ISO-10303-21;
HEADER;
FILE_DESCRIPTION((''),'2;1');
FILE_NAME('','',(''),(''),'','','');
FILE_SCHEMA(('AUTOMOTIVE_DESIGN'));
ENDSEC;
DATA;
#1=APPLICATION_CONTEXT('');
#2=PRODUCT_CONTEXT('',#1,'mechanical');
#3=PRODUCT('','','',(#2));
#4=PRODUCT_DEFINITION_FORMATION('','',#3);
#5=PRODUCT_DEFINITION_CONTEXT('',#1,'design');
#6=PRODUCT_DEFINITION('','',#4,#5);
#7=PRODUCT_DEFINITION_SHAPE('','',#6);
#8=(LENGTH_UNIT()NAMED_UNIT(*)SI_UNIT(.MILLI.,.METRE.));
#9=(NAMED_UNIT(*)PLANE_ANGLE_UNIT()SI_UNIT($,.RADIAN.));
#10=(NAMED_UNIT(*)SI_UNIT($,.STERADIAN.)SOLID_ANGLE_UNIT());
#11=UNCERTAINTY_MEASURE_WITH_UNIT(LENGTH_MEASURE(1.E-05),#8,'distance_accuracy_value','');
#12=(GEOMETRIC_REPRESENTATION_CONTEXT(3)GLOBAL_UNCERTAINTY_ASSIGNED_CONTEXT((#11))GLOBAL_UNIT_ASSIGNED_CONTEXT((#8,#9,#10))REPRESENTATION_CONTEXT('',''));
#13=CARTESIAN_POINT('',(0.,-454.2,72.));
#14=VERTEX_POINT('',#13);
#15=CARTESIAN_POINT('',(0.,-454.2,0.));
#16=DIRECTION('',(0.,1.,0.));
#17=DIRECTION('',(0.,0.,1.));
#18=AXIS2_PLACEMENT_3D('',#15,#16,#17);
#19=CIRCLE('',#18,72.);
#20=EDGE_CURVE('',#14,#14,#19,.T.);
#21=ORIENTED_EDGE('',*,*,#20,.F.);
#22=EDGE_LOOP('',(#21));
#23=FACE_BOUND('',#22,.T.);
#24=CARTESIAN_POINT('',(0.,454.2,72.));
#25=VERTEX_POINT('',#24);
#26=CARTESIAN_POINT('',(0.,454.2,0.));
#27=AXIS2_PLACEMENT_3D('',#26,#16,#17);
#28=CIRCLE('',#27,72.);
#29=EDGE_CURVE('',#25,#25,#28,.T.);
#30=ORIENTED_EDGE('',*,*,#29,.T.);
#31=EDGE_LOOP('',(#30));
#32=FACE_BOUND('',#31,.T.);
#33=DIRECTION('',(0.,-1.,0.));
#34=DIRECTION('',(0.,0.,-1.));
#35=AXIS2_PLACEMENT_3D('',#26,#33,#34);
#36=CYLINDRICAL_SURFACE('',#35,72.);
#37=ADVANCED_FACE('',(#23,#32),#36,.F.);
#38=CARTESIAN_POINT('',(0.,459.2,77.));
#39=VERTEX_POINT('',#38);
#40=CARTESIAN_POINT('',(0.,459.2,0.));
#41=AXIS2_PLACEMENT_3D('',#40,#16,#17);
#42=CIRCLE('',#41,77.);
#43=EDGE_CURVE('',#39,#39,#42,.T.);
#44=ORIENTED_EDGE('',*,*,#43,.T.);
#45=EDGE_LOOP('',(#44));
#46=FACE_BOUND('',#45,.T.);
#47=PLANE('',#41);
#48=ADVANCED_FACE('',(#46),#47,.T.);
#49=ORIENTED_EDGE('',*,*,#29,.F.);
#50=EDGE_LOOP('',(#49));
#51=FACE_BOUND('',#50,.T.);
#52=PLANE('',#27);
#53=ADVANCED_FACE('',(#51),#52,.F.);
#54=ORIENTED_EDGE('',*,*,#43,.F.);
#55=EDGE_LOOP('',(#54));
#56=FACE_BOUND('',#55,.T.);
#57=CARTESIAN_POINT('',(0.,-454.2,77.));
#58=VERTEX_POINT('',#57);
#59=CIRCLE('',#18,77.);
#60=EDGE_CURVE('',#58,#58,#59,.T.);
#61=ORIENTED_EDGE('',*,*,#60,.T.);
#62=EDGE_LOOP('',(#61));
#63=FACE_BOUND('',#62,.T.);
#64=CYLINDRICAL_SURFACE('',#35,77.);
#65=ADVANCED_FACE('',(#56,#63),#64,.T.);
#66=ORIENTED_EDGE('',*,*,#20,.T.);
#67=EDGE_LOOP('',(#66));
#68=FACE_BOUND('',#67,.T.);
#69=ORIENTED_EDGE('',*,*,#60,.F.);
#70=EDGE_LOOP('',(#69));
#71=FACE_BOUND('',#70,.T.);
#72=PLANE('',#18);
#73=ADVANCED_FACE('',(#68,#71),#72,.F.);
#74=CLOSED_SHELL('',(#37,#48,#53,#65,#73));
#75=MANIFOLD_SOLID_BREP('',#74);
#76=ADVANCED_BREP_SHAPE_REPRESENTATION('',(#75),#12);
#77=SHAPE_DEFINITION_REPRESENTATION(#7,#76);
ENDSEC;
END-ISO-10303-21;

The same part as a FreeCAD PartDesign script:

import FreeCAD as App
import Part
import Sketcher
from FreeCAD import Vector

doc = App.newDocument("Part")
body = doc.addObject("PartDesign::Body", "Body")

# Sketch on XZ plane
sketch1 = body.newObject("Sketcher::SketchObject", "Sketch")
sketch1.AttachmentSupport = (doc.getObject("XZ_Plane"), [""])
sketch1.MapMode = "FlatFace"
sketch1.addGeometry([
    Part.Circle(Vector(0, 0, 0), Vector(0, 0, 1), 77),
    Part.Circle(Vector(0, 0, 0), Vector(0, 0, 1), 72),
], False)
sketch1.addConstraint([
    Sketcher.Constraint("Coincident", 0, 3, -1, 1),
    Sketcher.Constraint("Coincident", 1, 3, -1, 1),
    Sketcher.Constraint("Diameter", 0, 154.0),
    Sketcher.Constraint("Diameter", 1, 144.0),
])
pad1 = body.newObject("PartDesign::Pad", "Pad")
pad1.Profile = sketch1
pad1.Length = 908.4
pad1.Midplane = True

# Sketch on XZ plane
sketch2 = body.newObject("Sketcher::SketchObject", "Sketch001")
sketch2.AttachmentSupport = (doc.getObject("XZ_Plane"), [""])
sketch2.MapMode = "FlatFace"
sketch2.AttachmentOffset = App.Placement(Vector(0, 0, -454.2), App.Rotation())
sketch2.addGeometry(Part.Circle(Vector(0, 0, 0), Vector(0, 0, 1), 77), False)
sketch2.addConstraint([
    Sketcher.Constraint("Coincident", 0, 3, -1, 1),
    Sketcher.Constraint("Diameter", 0, 154.0),
])
pad2 = body.newObject("PartDesign::Pad", "Pad001")
pad2.Profile = sketch2
pad2.Length = 5
pad2.Reversed = True

doc.recompute()
